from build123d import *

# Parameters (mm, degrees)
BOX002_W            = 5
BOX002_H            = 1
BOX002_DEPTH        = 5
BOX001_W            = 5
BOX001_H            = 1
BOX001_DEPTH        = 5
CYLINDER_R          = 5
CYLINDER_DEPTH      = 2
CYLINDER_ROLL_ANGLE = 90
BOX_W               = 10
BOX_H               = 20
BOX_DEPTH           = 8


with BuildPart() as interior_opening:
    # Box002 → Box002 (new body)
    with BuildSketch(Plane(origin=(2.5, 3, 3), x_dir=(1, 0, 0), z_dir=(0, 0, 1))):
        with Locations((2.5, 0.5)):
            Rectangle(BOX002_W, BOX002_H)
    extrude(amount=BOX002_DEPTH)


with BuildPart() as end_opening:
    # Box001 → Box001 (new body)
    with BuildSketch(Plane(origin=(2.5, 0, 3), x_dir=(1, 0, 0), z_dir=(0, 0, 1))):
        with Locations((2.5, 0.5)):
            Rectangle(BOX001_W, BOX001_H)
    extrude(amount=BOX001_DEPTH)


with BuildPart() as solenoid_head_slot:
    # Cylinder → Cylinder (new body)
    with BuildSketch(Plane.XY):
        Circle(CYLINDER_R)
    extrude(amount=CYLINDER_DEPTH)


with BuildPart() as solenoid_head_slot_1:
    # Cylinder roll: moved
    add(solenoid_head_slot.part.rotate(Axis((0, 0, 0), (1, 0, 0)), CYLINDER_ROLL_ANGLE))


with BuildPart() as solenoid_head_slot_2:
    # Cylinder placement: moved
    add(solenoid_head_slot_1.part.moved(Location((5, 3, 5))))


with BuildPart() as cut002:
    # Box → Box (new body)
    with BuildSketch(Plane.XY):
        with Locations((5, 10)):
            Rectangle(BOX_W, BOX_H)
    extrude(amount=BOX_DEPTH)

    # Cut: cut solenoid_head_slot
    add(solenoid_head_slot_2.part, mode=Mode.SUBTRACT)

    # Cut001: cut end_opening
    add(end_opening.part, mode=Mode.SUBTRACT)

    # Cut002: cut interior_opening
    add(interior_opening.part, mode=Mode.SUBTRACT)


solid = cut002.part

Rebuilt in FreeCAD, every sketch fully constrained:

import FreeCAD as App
import Part
import Sketcher
from FreeCAD import Vector

doc = App.newDocument("Part")
params = doc.addObject("Spreadsheet::Sheet", "Params")
for row, (alias, value) in enumerate([
    ("sketch1_width", "5 mm"),
    ("sketch1_height", "1 mm"),
    ("pad1_length", "5 mm"),
    ("sketch2_width", "5 mm"),
    ("sketch2_height", "1 mm"),
    ("pad2_length", "5 mm"),
    ("sketch3_diameter", "10 mm"),
    ("pad3_length", "2 mm"),
    ("sketch4_width", "10 mm"),
    ("sketch4_height", "20 mm"),
    ("pad4_length", "8 mm"),
], start=1):
    params.set(f"A{row}", alias)
    params.set(f"B{row}", "=" + value)
    params.setAlias(f"B{row}", alias)

body = doc.addObject("PartDesign::Body", "Body")

# Sketch on XY plane
sketch1 = doc.addObject("Sketcher::SketchObject", "Sketch")
body.addObject(sketch1)
sketch1.AttachmentSupport = (doc.XY_Plane, [""])
sketch1.MapMode = "FlatFace"
sketch1.AttachmentOffset = App.Placement(Vector(0, 0, 3), App.Rotation())
sketch1.addGeometry(Part.LineSegment(Vector(2.5, 4, 0), Vector(2.5, 3, 0)), False)
sketch1.addGeometry(Part.LineSegment(Vector(2.5, 3, 0), Vector(7.5, 3, 0)), False)
sketch1.addGeometry(Part.LineSegment(Vector(7.5, 3, 0), Vector(7.5, 4, 0)), False)
sketch1.addGeometry(Part.LineSegment(Vector(7.5, 4, 0), Vector(2.5, 4, 0)), False)
sketch1.addConstraint(Sketcher.Constraint("Coincident", 0, 2, 1, 1))
sketch1.addConstraint(Sketcher.Constraint("Coincident", 1, 2, 2, 1))
sketch1.addConstraint(Sketcher.Constraint("Coincident", 2, 2, 3, 1))
sketch1.addConstraint(Sketcher.Constraint("Coincident", 3, 2, 0, 1))
sketch1.addConstraint(Sketcher.Constraint("Vertical", 0))
sketch1.addConstraint(Sketcher.Constraint("Horizontal", 1))
sketch1.addConstraint(Sketcher.Constraint("Vertical", 2))
sketch1.addConstraint(Sketcher.Constraint("Horizontal", 3))
sketch1.addConstraint(Sketcher.Constraint("DistanceX", 1, 1, 1, 2, 5.0))
sketch1.addConstraint(Sketcher.Constraint("DistanceY", 0, 2, 0, 1, 1.0))
sketch1.addConstraint(Sketcher.Constraint("DistanceY", -1, 1, 0, 2, 3.0))
sketch1.addConstraint(Sketcher.Constraint("DistanceX", -1, 1, 0, 2, 2.5))
sketch1.setExpression("Constraints[8]", "Params.sketch1_width")
sketch1.setExpression("Constraints[9]", "Params.sketch1_height")
pad1 = doc.addObject("PartDesign::Pad", "Pad")
body.addObject(pad1)
pad1.Profile = sketch1
pad1.setExpression("Length", "Params.pad1_length")
body2 = doc.addObject("PartDesign::Body", "Body001")

# Sketch on XY plane
sketch2 = doc.addObject("Sketcher::SketchObject", "Sketch001")
body2.addObject(sketch2)
sketch2.AttachmentSupport = (doc.getObject("XY_Plane001"), [""])
sketch2.MapMode = "FlatFace"
sketch2.AttachmentOffset = App.Placement(Vector(0, 0, 3), App.Rotation())
sketch2.addGeometry(Part.LineSegment(Vector(2.5, 1, 0), Vector(2.5, 0, 0)), False)
sketch2.addGeometry(Part.LineSegment(Vector(2.5, 0, 0), Vector(7.5, 0, 0)), False)
sketch2.addGeometry(Part.LineSegment(Vector(7.5, 0, 0), Vector(7.5, 1, 0)), False)
sketch2.addGeometry(Part.LineSegment(Vector(7.5, 1, 0), Vector(2.5, 1, 0)), False)
sketch2.addConstraint(Sketcher.Constraint("Coincident", 0, 2, 1, 1))
sketch2.addConstraint(Sketcher.Constraint("Coincident", 1, 2, 2, 1))
sketch2.addConstraint(Sketcher.Constraint("Coincident", 2, 2, 3, 1))
sketch2.addConstraint(Sketcher.Constraint("Coincident", 3, 2, 0, 1))
sketch2.addConstraint(Sketcher.Constraint("Vertical", 0))
sketch2.addConstraint(Sketcher.Constraint("Horizontal", 1))
sketch2.addConstraint(Sketcher.Constraint("Vertical", 2))
sketch2.addConstraint(Sketcher.Constraint("Horizontal", 3))
sketch2.addConstraint(Sketcher.Constraint("PointOnObject", 0, 2, -1))
sketch2.addConstraint(Sketcher.Constraint("DistanceX", 1, 1, 1, 2, 5.0))
sketch2.addConstraint(Sketcher.Constraint("DistanceY", 0, 2, 0, 1, 1.0))
sketch2.addConstraint(Sketcher.Constraint("DistanceX", -1, 1, 0, 2, 2.5))
sketch2.setExpression("Constraints[9]", "Params.sketch2_width")
sketch2.setExpression("Constraints[10]", "Params.sketch2_height")
pad2 = doc.addObject("PartDesign::Pad", "Pad001")
body2.addObject(pad2)
pad2.Profile = sketch2
pad2.setExpression("Length", "Params.pad2_length")
body3 = doc.addObject("PartDesign::Body", "Body002")

# Sketch on XY plane
sketch3 = doc.addObject("Sketcher::SketchObject", "Sketch002")
body3.addObject(sketch3)
sketch3.AttachmentSupport = (doc.getObject("XY_Plane002"), [""])
sketch3.MapMode = "FlatFace"
sketch3.addGeometry(Part.Circle(Vector(0, 0, 0), Vector(0, 0, 1), 5), False)
sketch3.addConstraint(Sketcher.Constraint("Coincident", 0, 3, -1, 1))
sketch3.addConstraint(Sketcher.Constraint("Diameter", 0, 10.0))
sketch3.setExpression("Constraints[1]", "Params.sketch3_diameter")
pad3 = doc.addObject("PartDesign::Pad", "Pad002")
body3.addObject(pad3)
pad3.Profile = sketch3
pad3.setExpression("Length", "Params.pad3_length")
body4 = doc.addObject("PartDesign::Body", "Body003")
doc.recompute()

body3.Placement = App.Placement(Vector(0, 0, 0), App.Rotation(Vector(1, 0, 0), 90))
boolean = doc.addObject("PartDesign::Boolean", "Boolean")
body4.addObject(boolean)
boolean.Type = "Fuse"
boolean.addObjects([body3])
body5 = doc.addObject("PartDesign::Body", "Body004")
doc.recompute()

body4.Placement = App.Placement(Vector(5, 3, 5), App.Rotation(Vector(0, 0, 1), 0))
boolean2 = doc.addObject("PartDesign::Boolean", "Boolean001")
body5.addObject(boolean2)
boolean2.Type = "Fuse"
boolean2.addObjects([body4])
body6 = doc.addObject("PartDesign::Body", "Body005")

# Sketch on XY plane
sketch4 = doc.addObject("Sketcher::SketchObject", "Sketch003")
body6.addObject(sketch4)
sketch4.AttachmentSupport = (doc.getObject("XY_Plane005"), [""])
sketch4.MapMode = "FlatFace"
sketch4.addGeometry(Part.LineSegment(Vector(0, 20, 0), Vector(0, 0, 0)), False)
sketch4.addGeometry(Part.LineSegment(Vector(0, 0, 0), Vector(10, 0, 0)), False)
sketch4.addGeometry(Part.LineSegment(Vector(10, 0, 0), Vector(10, 20, 0)), False)
sketch4.addGeometry(Part.LineSegment(Vector(10, 20, 0), Vector(0, 20, 0)), False)
sketch4.addConstraint(Sketcher.Constraint("Coincident", 0, 2, 1, 1))
sketch4.addConstraint(Sketcher.Constraint("Coincident", 1, 2, 2, 1))
sketch4.addConstraint(Sketcher.Constraint("Coincident", 2, 2, 3, 1))
sketch4.addConstraint(Sketcher.Constraint("Coincident", 3, 2, 0, 1))
sketch4.addConstraint(Sketcher.Constraint("Vertical", 0))
sketch4.addConstraint(Sketcher.Constraint("Horizontal", 1))
sketch4.addConstraint(Sketcher.Constraint("Vertical", 2))
sketch4.addConstraint(Sketcher.Constraint("Horizontal", 3))
sketch4.addConstraint(Sketcher.Constraint("Coincident", 0, 2, -1, 1))
sketch4.addConstraint(Sketcher.Constraint("DistanceX", 1, 1, 1, 2, 10.0))
sketch4.addConstraint(Sketcher.Constraint("DistanceY", 0, 2, 0, 1, 20.0))
sketch4.setExpression("Constraints[9]", "Params.sketch4_width")
sketch4.setExpression("Constraints[10]", "Params.sketch4_height")
pad4 = doc.addObject("PartDesign::Pad", "Pad003")
body6.addObject(pad4)
pad4.Profile = sketch4
pad4.setExpression("Length", "Params.pad4_length")
doc.recompute()

boolean3 = doc.addObject("PartDesign::Boolean", "Boolean002")
body6.addObject(boolean3)
boolean3.Type = "Cut"
boolean3.addObjects([body5])
doc.recompute()

boolean4 = doc.addObject("PartDesign::Boolean", "Boolean003")
body6.addObject(boolean4)
boolean4.Type = "Cut"
boolean4.addObjects([body2])
doc.recompute()

boolean5 = doc.addObject("PartDesign::Boolean", "Boolean004")
body6.addObject(boolean5)
boolean5.Type = "Cut"
boolean5.addObjects([body])

doc.recompute()
